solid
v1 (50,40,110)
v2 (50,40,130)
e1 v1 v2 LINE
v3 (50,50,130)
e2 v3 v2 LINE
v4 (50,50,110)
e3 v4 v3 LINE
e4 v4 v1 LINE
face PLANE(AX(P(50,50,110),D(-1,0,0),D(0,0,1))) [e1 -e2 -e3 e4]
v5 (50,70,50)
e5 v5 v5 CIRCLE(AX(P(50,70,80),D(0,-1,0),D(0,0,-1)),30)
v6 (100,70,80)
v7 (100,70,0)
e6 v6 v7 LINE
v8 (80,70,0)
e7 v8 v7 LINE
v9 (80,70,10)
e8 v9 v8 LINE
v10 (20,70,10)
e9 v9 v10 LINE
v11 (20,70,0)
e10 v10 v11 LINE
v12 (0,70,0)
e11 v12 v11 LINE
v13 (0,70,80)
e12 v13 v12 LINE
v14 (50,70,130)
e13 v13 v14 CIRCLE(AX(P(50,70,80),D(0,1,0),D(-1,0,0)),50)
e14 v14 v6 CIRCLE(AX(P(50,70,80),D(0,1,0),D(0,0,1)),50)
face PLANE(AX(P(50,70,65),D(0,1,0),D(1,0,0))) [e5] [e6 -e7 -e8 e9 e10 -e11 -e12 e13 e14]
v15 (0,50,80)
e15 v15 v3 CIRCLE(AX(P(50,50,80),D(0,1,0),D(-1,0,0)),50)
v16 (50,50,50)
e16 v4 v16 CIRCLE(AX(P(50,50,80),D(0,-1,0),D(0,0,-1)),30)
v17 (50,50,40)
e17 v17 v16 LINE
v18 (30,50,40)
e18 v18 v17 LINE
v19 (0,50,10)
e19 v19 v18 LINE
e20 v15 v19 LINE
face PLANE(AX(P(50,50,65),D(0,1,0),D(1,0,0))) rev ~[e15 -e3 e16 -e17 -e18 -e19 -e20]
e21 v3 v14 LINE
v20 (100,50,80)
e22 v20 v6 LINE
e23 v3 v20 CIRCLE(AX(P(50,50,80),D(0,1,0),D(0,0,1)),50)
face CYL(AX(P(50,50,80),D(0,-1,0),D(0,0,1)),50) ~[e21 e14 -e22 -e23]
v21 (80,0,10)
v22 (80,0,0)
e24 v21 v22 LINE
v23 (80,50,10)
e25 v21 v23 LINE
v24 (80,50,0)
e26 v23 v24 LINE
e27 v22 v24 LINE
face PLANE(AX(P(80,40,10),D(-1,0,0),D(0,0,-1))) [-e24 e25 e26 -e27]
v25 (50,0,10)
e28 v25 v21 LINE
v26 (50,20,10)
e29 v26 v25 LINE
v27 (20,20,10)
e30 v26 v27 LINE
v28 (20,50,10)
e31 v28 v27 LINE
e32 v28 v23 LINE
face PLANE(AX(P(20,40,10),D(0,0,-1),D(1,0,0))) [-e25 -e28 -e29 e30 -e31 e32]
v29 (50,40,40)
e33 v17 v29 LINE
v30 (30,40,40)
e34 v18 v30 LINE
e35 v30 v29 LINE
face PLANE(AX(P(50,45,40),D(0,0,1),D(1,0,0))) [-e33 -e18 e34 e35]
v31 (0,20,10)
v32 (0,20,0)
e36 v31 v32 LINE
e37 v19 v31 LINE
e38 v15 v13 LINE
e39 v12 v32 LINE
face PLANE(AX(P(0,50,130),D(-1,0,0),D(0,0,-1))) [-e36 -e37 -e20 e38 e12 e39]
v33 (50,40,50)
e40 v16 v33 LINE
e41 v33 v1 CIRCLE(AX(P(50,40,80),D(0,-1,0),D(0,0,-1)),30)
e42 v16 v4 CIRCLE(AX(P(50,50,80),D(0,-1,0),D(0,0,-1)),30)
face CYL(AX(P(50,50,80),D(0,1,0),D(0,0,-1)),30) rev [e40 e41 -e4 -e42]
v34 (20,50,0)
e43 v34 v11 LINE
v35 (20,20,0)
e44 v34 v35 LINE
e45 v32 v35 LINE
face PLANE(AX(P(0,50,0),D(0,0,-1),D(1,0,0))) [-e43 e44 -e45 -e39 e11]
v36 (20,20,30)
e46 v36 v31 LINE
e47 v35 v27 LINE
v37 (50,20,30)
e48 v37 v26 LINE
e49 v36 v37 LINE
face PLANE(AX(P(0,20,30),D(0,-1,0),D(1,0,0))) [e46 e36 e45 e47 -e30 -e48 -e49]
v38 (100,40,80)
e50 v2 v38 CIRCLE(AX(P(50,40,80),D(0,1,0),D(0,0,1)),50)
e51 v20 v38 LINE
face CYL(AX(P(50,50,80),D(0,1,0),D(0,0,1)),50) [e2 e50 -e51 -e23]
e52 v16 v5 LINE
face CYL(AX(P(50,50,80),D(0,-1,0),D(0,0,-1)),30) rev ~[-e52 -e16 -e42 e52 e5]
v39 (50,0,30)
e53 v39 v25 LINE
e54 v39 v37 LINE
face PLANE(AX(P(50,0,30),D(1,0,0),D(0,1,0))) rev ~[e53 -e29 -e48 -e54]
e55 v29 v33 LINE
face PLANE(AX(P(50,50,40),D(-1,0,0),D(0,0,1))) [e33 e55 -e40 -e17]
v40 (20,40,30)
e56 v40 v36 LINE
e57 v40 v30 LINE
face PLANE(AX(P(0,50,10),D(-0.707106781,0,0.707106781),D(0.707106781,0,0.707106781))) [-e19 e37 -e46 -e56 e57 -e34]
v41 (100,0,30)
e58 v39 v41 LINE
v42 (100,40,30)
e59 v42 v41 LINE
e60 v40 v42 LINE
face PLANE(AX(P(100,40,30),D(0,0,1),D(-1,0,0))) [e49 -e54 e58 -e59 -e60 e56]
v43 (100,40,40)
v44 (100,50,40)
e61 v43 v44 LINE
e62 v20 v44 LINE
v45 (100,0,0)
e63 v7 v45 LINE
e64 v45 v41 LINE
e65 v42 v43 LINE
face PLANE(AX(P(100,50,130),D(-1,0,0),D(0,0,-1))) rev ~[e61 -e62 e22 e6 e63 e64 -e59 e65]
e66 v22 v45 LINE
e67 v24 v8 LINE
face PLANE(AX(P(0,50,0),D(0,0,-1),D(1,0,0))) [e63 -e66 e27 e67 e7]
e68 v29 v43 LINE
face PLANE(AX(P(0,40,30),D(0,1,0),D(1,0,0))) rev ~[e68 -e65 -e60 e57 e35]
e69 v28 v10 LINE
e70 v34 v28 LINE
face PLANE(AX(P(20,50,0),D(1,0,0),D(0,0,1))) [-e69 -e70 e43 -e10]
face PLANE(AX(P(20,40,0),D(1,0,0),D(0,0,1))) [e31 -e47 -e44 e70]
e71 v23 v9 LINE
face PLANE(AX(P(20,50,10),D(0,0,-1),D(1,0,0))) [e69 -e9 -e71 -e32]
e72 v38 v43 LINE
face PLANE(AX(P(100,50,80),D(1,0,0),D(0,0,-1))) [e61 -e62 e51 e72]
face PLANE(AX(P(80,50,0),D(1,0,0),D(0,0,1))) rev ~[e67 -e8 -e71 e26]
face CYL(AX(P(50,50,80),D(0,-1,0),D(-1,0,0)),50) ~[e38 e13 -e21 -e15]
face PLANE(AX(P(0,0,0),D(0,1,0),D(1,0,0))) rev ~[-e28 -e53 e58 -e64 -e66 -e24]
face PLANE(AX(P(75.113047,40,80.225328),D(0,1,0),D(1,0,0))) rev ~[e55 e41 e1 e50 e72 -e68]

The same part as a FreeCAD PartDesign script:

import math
import FreeCAD as App
import Part
import Sketcher

V = App.Vector
Q = App.Units.Quantity


def add_polygon(sketch, points):
    """Adds a closed chain of lines whose ends are joined by coincident constraints."""
    first, n = sketch.GeometryCount, len(points)
    for a, b in zip(points, points[1:] + points[:1]):
        sketch.addGeometry(Part.LineSegment(App.Vector(*a, 0), App.Vector(*b, 0)), False)
    for i in range(n):
        sketch.addConstraint(Sketcher.Constraint("Coincident", first + i, 2, first + (i + 1) % n, 1))

doc = App.newDocument("Part")
params = doc.addObject("Spreadsheet::Sheet", "Params")
for row, (alias, value) in enumerate([
    ("sketch1_width", "100 mm"),
    ("sketch1_height", "40 mm"),
    ("pad1_length", "30 mm"),
    ("sketch2_width", "50 mm"),
    ("sketch2_height", "20 mm"),
    ("pocket1_length", "30 mm"),
    ("sketch3_width", "60 mm"),
    ("sketch3_height", "10 mm"),
    ("pocket2_length", "110 mm"),
    ("sketch4_width", "20 mm"),
    ("sketch4_width2", "60 mm"),
    ("sketch4_height", "30 mm"),
    ("sketch4_height2", "10 mm"),
    ("pad2_length", "10 mm"),
    ("sketch5_width", "100 mm"),
    ("sketch5_height", "10 mm"),
    ("pad3_length", "10 mm"),
    ("sketch6_width", "30 mm"),
    ("pocket3_length", "45 mm"),
    ("sketch7_width", "100 mm"),
    ("sketch7_height", "130 mm"),
    ("pad4_length", "20 mm"),
    ("sketch8_diameter", "60 mm"),
    ("pocket4_length", "20 mm"),
    ("sketch9_radius", "50 mm"),
    ("pocket5_length", "20 mm"),
    ("sketch10_radius", "30 mm"),
    ("sketch10_radius2", "50 mm"),
    ("sketch10_height", "10 mm"),
    ("pad5_length", "10 mm"),
    ("sketch11_width", "60 mm"),
    ("sketch11_height", "10 mm"),
    ("pocket6_length", "56 mm"),
], start=1):
    params.set(f"A{row}", alias)
    params.set(f"B{row}", "=" + value)
    params.setAlias(f"B{row}", alias)

body = doc.addObject("PartDesign::Body", "Body")

# Sketch on XY plane
sketch1 = body.newObject("Sketcher::SketchObject", "Sketch")
sketch1.AttachmentSupport = (doc.getObject("XY_Plane"), [""])
sketch1.MapMode = "FlatFace"
add_polygon(sketch1, [(0, 40), (0, 0), (100, 0), (100, 40)])  # lines 0-3
sketch1.addConstraint(Sketcher.Constraint("Vertical", 0))
sketch1.addConstraint(Sketcher.Constraint("Horizontal", 1))
sketch1.addConstraint(Sketcher.Constraint("Vertical", 2))
sketch1.addConstraint(Sketcher.Constraint("Horizontal", 3))
sketch1.addConstraint(Sketcher.Constraint("Coincident", 0, 2, -1, 1))
sketch1.addConstraint(Sketcher.Constraint("DistanceX", 1, 1, 1, 2, Q("100 mm")))
sketch1.addConstraint(Sketcher.Constraint("DistanceY", 0, 2, 0, 1, Q("40 mm")))
sketch1.setExpression("Constraints[9]", "Params.sketch1_width")
sketch1.setExpression("Constraints[10]", "Params.sketch1_height")
pad1 = body.newObject("PartDesign::Pad", "Pad")
pad1.Profile = sketch1
pad1.setExpression("Length", "Params.pad1_length")

# Sketch on XY plane
sketch2 = body.newObject("Sketcher::SketchObject", "Sketch001")
sketch2.AttachmentSupport = (doc.getObject("XY_Plane"), [""])
sketch2.MapMode = "FlatFace"
sketch2.AttachmentOffset = App.Placement(V(0, 0, 30), App.Rotation())
add_polygon(sketch2, [(0, 20), (0, 0), (50, 0), (50, 20)])  # lines 0-3
sketch2.addConstraint(Sketcher.Constraint("Vertical", 0))
sketch2.addConstraint(Sketcher.Constraint("Horizontal", 1))
sketch2.addConstraint(Sketcher.Constraint("Vertical", 2))
sketch2.addConstraint(Sketcher.Constraint("Horizontal", 3))
sketch2.addConstraint(Sketcher.Constraint("Coincident", 0, 2, -1, 1))
sketch2.addConstraint(Sketcher.Constraint("DistanceX", 1, 1, 1, 2, Q("50 mm")))
sketch2.addConstraint(Sketcher.Constraint("DistanceY", 0, 2, 0, 1, Q("20 mm")))
sketch2.setExpression("Constraints[9]", "Params.sketch2_width")
sketch2.setExpression("Constraints[10]", "Params.sketch2_height")
pocket1 = body.newObject("PartDesign::Pocket", "Pocket")
pocket1.Profile = sketch2
pocket1.setExpression("Length", "Params.pocket1_length")

# Sketch on XZ plane
sketch3 = body.newObject("Sketcher::SketchObject", "Sketch002")
sketch3.AttachmentSupport = (doc.getObject("XZ_Plane"), [""])
sketch3.MapMode = "FlatFace"
sketch3.AttachmentOffset = App.Placement(V(0, 0, -40), App.Rotation())
add_polygon(sketch3, [(20, 0), (20, 10), (80, 10), (80, 0)])  # lines 0-3
sketch3.addConstraint(Sketcher.Constraint("Vertical", 0))
sketch3.addConstraint(Sketcher.Constraint("Horizontal", 1))
sketch3.addConstraint(Sketcher.Constraint("Vertical", 2))
sketch3.addConstraint(Sketcher.Constraint("Horizontal", 3))
sketch3.addConstraint(Sketcher.Constraint("PointOnObject", 2, 2, -1))
sketch3.addConstraint(Sketcher.Constraint("DistanceX", 1, 1, 1, 2, Q("60 mm")))
sketch3.addConstraint(Sketcher.Constraint("DistanceY", 0, 1, 0, 2, Q("10 mm")))
sketch3.addConstraint(Sketcher.Constraint("DistanceX", -1, 1, 0, 2, Q("20 mm")))
sketch3.setExpression("Constraints[9]", "Params.sketch3_width")
sketch3.setExpression("Constraints[10]", "Params.sketch3_height")
pocket2 = body.newObject("PartDesign::Pocket", "Pocket001")
pocket2.Profile = sketch3
pocket2.setExpression("Length", "Params.pocket2_length")
pocket2.Reversed = True

# Sketch on XZ plane
sketch4 = body.newObject("Sketcher::SketchObject", "Sketch003")
sketch4.AttachmentSupport = (doc.getObject("XZ_Plane"), [""])
sketch4.MapMode = "FlatFace"
sketch4.AttachmentOffset = App.Placement(V(0, 0, -40), App.Rotation())
add_polygon(sketch4, [(100, 30), (100, 0), (80, 0), (80, 10), (20, 10), (20, 0), (0, 0), (0, 30)])  # lines 0-7
sketch4.addConstraint(Sketcher.Constraint("Vertical", 0))
sketch4.addConstraint(Sketcher.Constraint("Horizontal", 1))
sketch4.addConstraint(Sketcher.Constraint("Vertical", 2))
sketch4.addConstraint(Sketcher.Constraint("Horizontal", 3))
sketch4.addConstraint(Sketcher.Constraint("Vertical", 4))
sketch4.addConstraint(Sketcher.Constraint("Horizontal", 5))
sketch4.addConstraint(Sketcher.Constraint("Vertical", 6))
sketch4.addConstraint(Sketcher.Constraint("Horizontal", 7))
sketch4.addConstraint(Sketcher.Constraint("Coincident", 5, 2, -1, 1))
sketch4.addConstraint(Sketcher.Constraint("PointOnObject", 0, 2, -1))
sketch4.addConstraint(Sketcher.Constraint("Equal", 1, 5))
sketch4.addConstraint(Sketcher.Constraint("DistanceX", 1, 2, 1, 1, Q("20 mm")))
sketch4.addConstraint(Sketcher.Constraint("DistanceX", 3, 2, 3, 1, Q("60 mm")))
sketch4.addConstraint(Sketcher.Constraint("DistanceY", 0, 2, 0, 1, Q("30 mm")))
sketch4.addConstraint(Sketcher.Constraint("DistanceY", 2, 1, 2, 2, Q("10 mm")))
sketch4.setExpression("Constraints[19]", "Params.sketch4_width")
sketch4.setExpression("Constraints[20]", "Params.sketch4_width2")
sketch4.setExpression("Constraints[21]", "Params.sketch4_height")
sketch4.setExpression("Constraints[22]", "Params.sketch4_height2")
pad2 = body.newObject("PartDesign::Pad", "Pad001")
pad2.Profile = sketch4
pad2.setExpression("Length", "Params.pad2_length")
pad2.Reversed = True

# Sketch on XY plane
sketch5 = body.newObject("Sketcher::SketchObject", "Sketch004")
sketch5.AttachmentSupport = (doc.getObject("XY_Plane"), [""])
sketch5.MapMode = "FlatFace"
sketch5.AttachmentOffset = App.Placement(V(0, 0, 30), App.Rotation())
add_polygon(sketch5, [(0, 50), (0, 40), (100, 40), (100, 50)])  # lines 0-3
sketch5.addConstraint(Sketcher.Constraint("Vertical", 0))
sketch5.addConstraint(Sketcher.Constraint("Horizontal", 1))
sketch5.addConstraint(Sketcher.Constraint("Vertical", 2))
sketch5.addConstraint(Sketcher.Constraint("Horizontal", 3))
sketch5.addConstraint(Sketcher.Constraint("PointOnObject", 0, 2, -2))
sketch5.addConstraint(Sketcher.Constraint("DistanceX", 1, 1, 1, 2, Q("100 mm")))
sketch5.addConstraint(Sketcher.Constraint("DistanceY", 0, 2, 0, 1, Q("10 mm")))
sketch5.addConstraint(Sketcher.Constraint("DistanceY", -1, 1, 0, 2, Q("40 mm")))
sketch5.setExpression("Constraints[9]", "Params.sketch5_width")
sketch5.setExpression("Constraints[10]", "Params.sketch5_height")
pad3 = body.newObject("PartDesign::Pad", "Pad002")
pad3.Profile = sketch5
pad3.setExpression("Length", "Params.pad3_length")

# Sketch on XZ plane
sketch6 = body.newObject("Sketcher::SketchObject", "Sketch005")
sketch6.AttachmentSupport = (doc.getObject("XZ_Plane"), [""])
sketch6.MapMode = "FlatFace"
sketch6.AttachmentOffset = App.Placement(V(0, 0, -50), App.Rotation())
add_polygon(sketch6, [(30, 40), (0, 10), (0, 40)])  # lines 0-2
sketch6.addConstraint(Sketcher.Constraint("Vertical", 1))
sketch6.addConstraint(Sketcher.Constraint("Horizontal", 2))
sketch6.addConstraint(Sketcher.Constraint("PointOnObject", 0, 2, -2))
sketch6.addConstraint(Sketcher.Constraint("Equal", 2, 1))
sketch6.addConstraint(Sketcher.Constraint("DistanceX", 2, 1, 2, 2, Q("30 mm")))
sketch6.addConstraint(Sketcher.Constraint("DistanceY", -1, 1, 0, 2, Q("10 mm")))
sketch6.setExpression("Constraints[7]", "Params.sketch6_width")
pocket3 = body.newObject("PartDesign::Pocket", "Pocket002")
pocket3.Profile = sketch6
pocket3.setExpression("Length", "Params.pocket3_length")
pocket3.Reversed = True

# Sketch on XZ plane
sketch7 = body.newObject("Sketcher::SketchObject", "Sketch006")
sketch7.AttachmentSupport = (doc.getObject("XZ_Plane"), [""])
sketch7.MapMode = "FlatFace"
sketch7.AttachmentOffset = App.Placement(V(0, 0, -50), App.Rotation())
add_polygon(sketch7, [(0, 0), (0, 130), (100, 130), (100, 0)])  # lines 0-3
sketch7.addConstraint(Sketcher.Constraint("Vertical", 0))
sketch7.addConstraint(Sketcher.Constraint("Horizontal", 1))
sketch7.addConstraint(Sketcher.Constraint("Vertical", 2))
sketch7.addConstraint(Sketcher.Constraint("Horizontal", 3))
sketch7.addConstraint(Sketcher.Constraint("Coincident", 3, 2, -1, 1))
sketch7.addConstraint(Sketcher.Constraint("DistanceX", 1, 1, 1, 2, Q("100 mm")))
sketch7.addConstraint(Sketcher.Constraint("DistanceY", 0, 1, 0, 2, Q("130 mm")))
sketch7.setExpression("Constraints[9]", "Params.sketch7_width")
sketch7.setExpression("Constraints[10]", "Params.sketch7_height")
pad4 = body.newObject("PartDesign::Pad", "Pad003")
pad4.Profile = sketch7
pad4.setExpression("Length", "Params.pad4_length")
pad4.Reversed = True

# Sketch on XZ plane
sketch8 = body.newObject("Sketcher::SketchObject", "Sketch007")
sketch8.AttachmentSupport = (doc.getObject("XZ_Plane"), [""])
sketch8.MapMode = "FlatFace"
sketch8.AttachmentOffset = App.Placement(V(0, 0, -50), App.Rotation())
sketch8.addGeometry(Part.Circle(V(50, 80, 0), V(0, 0, 1), 30), False)
sketch8.addConstraint(Sketcher.Constraint("Diameter", 0, Q("60 mm")))
sketch8.addConstraint(Sketcher.Constraint("DistanceX", -1, 1, 0, 3, Q("50 mm")))
sketch8.addConstraint(Sketcher.Constraint("DistanceY", -1, 1, 0, 3, Q("80 mm")))
sketch8.setExpression("Constraints[0]", "Params.sketch8_diameter")
pocket4 = body.newObject("PartDesign::Pocket", "Pocket003")
pocket4.Profile = sketch8
pocket4.setExpression("Length", "Params.pocket4_length")

# Sketch on XZ plane
sketch9 = body.newObject("Sketcher::SketchObject", "Sketch008")
sketch9.AttachmentSupport = (doc.getObject("XZ_Plane"), [""])
sketch9.MapMode = "FlatFace"
sketch9.AttachmentOffset = App.Placement(V(0, 0, -50), App.Rotation())
sketch9.addGeometry(Part.LineSegment(V(0, 130, 0), V(0, 80, 0)), False)
sketch9.addGeometry(Part.ArcOfCircle(Part.Circle(V(50, 80, 0), V(0, 0, 1), 50), math.radians(90), math.radians(180)), False)
sketch9.addGeometry(Part.LineSegment(V(50, 130, 0), V(0, 130, 0)), False)
sketch9.addGeometry(Part.LineSegment(V(100, 130, 0), V(50, 130, 0)), False)
sketch9.addGeometry(Part.ArcOfCircle(Part.Circle(V(50, 80, 0), V(0, 0, 1), 50), math.radians(0), math.radians(90)), False)
sketch9.addGeometry(Part.LineSegment(V(100, 80, 0), V(100, 130, 0)), False)
sketch9.addConstraint(Sketcher.Constraint("Tangent", 0, 2, 1, 2))
sketch9.addConstraint(Sketcher.Constraint("Tangent", 1, 1, 2, 1))
sketch9.addConstraint(Sketcher.Constraint("Coincident", 2, 2, 0, 1))
sketch9.addConstraint(Sketcher.Constraint("Tangent", 3, 2, 4, 2))
sketch9.addConstraint(Sketcher.Constraint("Tangent", 4, 1, 5, 1))
sketch9.addConstraint(Sketcher.Constraint("Coincident", 5, 2, 3, 1))
sketch9.addConstraint(Sketcher.Constraint("Vertical", 0))
sketch9.addConstraint(Sketcher.Constraint("Horizontal", 2))
sketch9.addConstraint(Sketcher.Constraint("Horizontal", 3))
sketch9.addConstraint(Sketcher.Constraint("Vertical", 5))
sketch9.addConstraint(Sketcher.Constraint("Coincident", 4, 3, 1, 3))
sketch9.addConstraint(Sketcher.Constraint("Equal", 1, 4))
sketch9.addConstraint(Sketcher.Constraint("PointOnObject", 0, 2, -2))
sketch9.addConstraint(Sketcher.Constraint("Radius", 1, Q("50 mm")))
sketch9.addConstraint(Sketcher.Constraint("DistanceY", -1, 1, 1, 3, Q("80 mm")))
sketch9.setExpression("Constraints[13]", "Params.sketch9_radius")
pocket5 = body.newObject("PartDesign::Pocket", "Pocket004")
pocket5.Profile = sketch9
pocket5.setExpression("Length", "Params.pocket5_length")

# Sketch on XZ plane
sketch10 = body.newObject("Sketcher::SketchObject", "Sketch009")
sketch10.AttachmentSupport = (doc.getObject("XZ_Plane"), [""])
sketch10.MapMode = "FlatFace"
sketch10.AttachmentOffset = App.Placement(V(0, 0, -50), App.Rotation())
sketch10.addGeometry(Part.LineSegment(V(50, 130, 0), V(50, 110, 0)), False)
sketch10.addGeometry(Part.ArcOfCircle(Part.Circle(V(50, 80, 0), V(0, 0, 1), 30), math.radians(-90), math.radians(90)), False)
sketch10.addGeometry(Part.LineSegment(V(50, 50, 0), V(50, 40, 0)), False)
sketch10.addGeometry(Part.LineSegment(V(50, 40, 0), V(100, 40, 0)), False)
sketch10.addGeometry(Part.LineSegment(V(100, 40, 0), V(100, 80, 0)), False)
sketch10.addGeometry(Part.ArcOfCircle(Part.Circle(V(50, 80, 0), V(0, 0, 1), 50), math.radians(0), math.radians(90)), False)
sketch10.addConstraint(Sketcher.Constraint("Coincident", 0, 2, 1, 2))
sketch10.addConstraint(Sketcher.Constraint("Coincident", 1, 1, 2, 1))
sketch10.addConstraint(Sketcher.Constraint("Coincident", 2, 2, 3, 1))
sketch10.addConstraint(Sketcher.Constraint("Coincident", 3, 2, 4, 1))
sketch10.addConstraint(Sketcher.Constraint("Tangent", 4, 2, 5, 1))
sketch10.addConstraint(Sketcher.Constraint("Coincident", 5, 2, 0, 1))
sketch10.addConstraint(Sketcher.Constraint("Vertical", 0))
sketch10.addConstraint(Sketcher.Constraint("Vertical", 2))
sketch10.addConstraint(Sketcher.Constraint("Horizontal", 3))
sketch10.addConstraint(Sketcher.Constraint("Vertical", 4))
sketch10.addConstraint(Sketcher.Constraint("Coincident", 5, 3, 1, 3))
sketch10.addConstraint(Sketcher.Constraint("Vertical", 5, 3, 0, 2))
sketch10.addConstraint(Sketcher.Constraint("Vertical", 0, 2, 1, 1))
sketch10.addConstraint(Sketcher.Constraint("Radius", 1, Q("30 mm")))
sketch10.addConstraint(Sketcher.Constraint("Radius", 5, Q("50 mm")))
sketch10.addConstraint(Sketcher.Constraint("DistanceY", 2, 2, 2, 1, Q("10 mm")))
sketch10.addConstraint(Sketcher.Constraint("DistanceX", -1, 1, 1, 3, Q("50 mm")))
sketch10.addConstraint(Sketcher.Constraint("DistanceY", -1, 1, 1, 3, Q("80 mm")))
sketch10.setExpression("Constraints[13]", "Params.sketch10_radius")
sketch10.setExpression("Constraints[14]", "Params.sketch10_radius2")
sketch10.setExpression("Constraints[15]", "Params.sketch10_height")
pad5 = body.newObject("PartDesign::Pad", "Pad004")
pad5.Profile = sketch10
pad5.setExpression("Length", "Params.pad5_length")

# Sketch on XZ plane
sketch11 = body.newObject("Sketcher::SketchObject", "Sketch010")
sketch11.AttachmentSupport = (doc.getObject("XZ_Plane"), [""])
sketch11.MapMode = "FlatFace"
sketch11.AttachmentOffset = App.Placement(V(0, 0, -50), App.Rotation())
add_polygon(sketch11, [(20, 10), (20, 0), (80, 0), (80, 10)])  # lines 0-3
sketch11.addConstraint(Sketcher.Constraint("Vertical", 0))
sketch11.addConstraint(Sketcher.Constraint("Horizontal", 1))
sketch11.addConstraint(Sketcher.Constraint("Vertical", 2))
sketch11.addConstraint(Sketcher.Constraint("Horizontal", 3))
sketch11.addConstraint(Sketcher.Constraint("PointOnObject", 0, 2, -1))
sketch11.addConstraint(Sketcher.Constraint("DistanceX", 1, 1, 1, 2, Q("60 mm")))
sketch11.addConstraint(Sketcher.Constraint("DistanceY", 0, 2, 0, 1, Q("10 mm")))
sketch11.addConstraint(Sketcher.Constraint("DistanceX", -1, 1, 0, 2, Q("20 mm")))
sketch11.setExpression("Constraints[9]", "Params.sketch11_width")
sketch11.setExpression("Constraints[10]", "Params.sketch11_height")
pocket6 = body.newObject("PartDesign::Pocket", "Pocket005")
pocket6.Profile = sketch11
pocket6.setExpression("Length", "Params.pocket6_length")

doc.recompute()
